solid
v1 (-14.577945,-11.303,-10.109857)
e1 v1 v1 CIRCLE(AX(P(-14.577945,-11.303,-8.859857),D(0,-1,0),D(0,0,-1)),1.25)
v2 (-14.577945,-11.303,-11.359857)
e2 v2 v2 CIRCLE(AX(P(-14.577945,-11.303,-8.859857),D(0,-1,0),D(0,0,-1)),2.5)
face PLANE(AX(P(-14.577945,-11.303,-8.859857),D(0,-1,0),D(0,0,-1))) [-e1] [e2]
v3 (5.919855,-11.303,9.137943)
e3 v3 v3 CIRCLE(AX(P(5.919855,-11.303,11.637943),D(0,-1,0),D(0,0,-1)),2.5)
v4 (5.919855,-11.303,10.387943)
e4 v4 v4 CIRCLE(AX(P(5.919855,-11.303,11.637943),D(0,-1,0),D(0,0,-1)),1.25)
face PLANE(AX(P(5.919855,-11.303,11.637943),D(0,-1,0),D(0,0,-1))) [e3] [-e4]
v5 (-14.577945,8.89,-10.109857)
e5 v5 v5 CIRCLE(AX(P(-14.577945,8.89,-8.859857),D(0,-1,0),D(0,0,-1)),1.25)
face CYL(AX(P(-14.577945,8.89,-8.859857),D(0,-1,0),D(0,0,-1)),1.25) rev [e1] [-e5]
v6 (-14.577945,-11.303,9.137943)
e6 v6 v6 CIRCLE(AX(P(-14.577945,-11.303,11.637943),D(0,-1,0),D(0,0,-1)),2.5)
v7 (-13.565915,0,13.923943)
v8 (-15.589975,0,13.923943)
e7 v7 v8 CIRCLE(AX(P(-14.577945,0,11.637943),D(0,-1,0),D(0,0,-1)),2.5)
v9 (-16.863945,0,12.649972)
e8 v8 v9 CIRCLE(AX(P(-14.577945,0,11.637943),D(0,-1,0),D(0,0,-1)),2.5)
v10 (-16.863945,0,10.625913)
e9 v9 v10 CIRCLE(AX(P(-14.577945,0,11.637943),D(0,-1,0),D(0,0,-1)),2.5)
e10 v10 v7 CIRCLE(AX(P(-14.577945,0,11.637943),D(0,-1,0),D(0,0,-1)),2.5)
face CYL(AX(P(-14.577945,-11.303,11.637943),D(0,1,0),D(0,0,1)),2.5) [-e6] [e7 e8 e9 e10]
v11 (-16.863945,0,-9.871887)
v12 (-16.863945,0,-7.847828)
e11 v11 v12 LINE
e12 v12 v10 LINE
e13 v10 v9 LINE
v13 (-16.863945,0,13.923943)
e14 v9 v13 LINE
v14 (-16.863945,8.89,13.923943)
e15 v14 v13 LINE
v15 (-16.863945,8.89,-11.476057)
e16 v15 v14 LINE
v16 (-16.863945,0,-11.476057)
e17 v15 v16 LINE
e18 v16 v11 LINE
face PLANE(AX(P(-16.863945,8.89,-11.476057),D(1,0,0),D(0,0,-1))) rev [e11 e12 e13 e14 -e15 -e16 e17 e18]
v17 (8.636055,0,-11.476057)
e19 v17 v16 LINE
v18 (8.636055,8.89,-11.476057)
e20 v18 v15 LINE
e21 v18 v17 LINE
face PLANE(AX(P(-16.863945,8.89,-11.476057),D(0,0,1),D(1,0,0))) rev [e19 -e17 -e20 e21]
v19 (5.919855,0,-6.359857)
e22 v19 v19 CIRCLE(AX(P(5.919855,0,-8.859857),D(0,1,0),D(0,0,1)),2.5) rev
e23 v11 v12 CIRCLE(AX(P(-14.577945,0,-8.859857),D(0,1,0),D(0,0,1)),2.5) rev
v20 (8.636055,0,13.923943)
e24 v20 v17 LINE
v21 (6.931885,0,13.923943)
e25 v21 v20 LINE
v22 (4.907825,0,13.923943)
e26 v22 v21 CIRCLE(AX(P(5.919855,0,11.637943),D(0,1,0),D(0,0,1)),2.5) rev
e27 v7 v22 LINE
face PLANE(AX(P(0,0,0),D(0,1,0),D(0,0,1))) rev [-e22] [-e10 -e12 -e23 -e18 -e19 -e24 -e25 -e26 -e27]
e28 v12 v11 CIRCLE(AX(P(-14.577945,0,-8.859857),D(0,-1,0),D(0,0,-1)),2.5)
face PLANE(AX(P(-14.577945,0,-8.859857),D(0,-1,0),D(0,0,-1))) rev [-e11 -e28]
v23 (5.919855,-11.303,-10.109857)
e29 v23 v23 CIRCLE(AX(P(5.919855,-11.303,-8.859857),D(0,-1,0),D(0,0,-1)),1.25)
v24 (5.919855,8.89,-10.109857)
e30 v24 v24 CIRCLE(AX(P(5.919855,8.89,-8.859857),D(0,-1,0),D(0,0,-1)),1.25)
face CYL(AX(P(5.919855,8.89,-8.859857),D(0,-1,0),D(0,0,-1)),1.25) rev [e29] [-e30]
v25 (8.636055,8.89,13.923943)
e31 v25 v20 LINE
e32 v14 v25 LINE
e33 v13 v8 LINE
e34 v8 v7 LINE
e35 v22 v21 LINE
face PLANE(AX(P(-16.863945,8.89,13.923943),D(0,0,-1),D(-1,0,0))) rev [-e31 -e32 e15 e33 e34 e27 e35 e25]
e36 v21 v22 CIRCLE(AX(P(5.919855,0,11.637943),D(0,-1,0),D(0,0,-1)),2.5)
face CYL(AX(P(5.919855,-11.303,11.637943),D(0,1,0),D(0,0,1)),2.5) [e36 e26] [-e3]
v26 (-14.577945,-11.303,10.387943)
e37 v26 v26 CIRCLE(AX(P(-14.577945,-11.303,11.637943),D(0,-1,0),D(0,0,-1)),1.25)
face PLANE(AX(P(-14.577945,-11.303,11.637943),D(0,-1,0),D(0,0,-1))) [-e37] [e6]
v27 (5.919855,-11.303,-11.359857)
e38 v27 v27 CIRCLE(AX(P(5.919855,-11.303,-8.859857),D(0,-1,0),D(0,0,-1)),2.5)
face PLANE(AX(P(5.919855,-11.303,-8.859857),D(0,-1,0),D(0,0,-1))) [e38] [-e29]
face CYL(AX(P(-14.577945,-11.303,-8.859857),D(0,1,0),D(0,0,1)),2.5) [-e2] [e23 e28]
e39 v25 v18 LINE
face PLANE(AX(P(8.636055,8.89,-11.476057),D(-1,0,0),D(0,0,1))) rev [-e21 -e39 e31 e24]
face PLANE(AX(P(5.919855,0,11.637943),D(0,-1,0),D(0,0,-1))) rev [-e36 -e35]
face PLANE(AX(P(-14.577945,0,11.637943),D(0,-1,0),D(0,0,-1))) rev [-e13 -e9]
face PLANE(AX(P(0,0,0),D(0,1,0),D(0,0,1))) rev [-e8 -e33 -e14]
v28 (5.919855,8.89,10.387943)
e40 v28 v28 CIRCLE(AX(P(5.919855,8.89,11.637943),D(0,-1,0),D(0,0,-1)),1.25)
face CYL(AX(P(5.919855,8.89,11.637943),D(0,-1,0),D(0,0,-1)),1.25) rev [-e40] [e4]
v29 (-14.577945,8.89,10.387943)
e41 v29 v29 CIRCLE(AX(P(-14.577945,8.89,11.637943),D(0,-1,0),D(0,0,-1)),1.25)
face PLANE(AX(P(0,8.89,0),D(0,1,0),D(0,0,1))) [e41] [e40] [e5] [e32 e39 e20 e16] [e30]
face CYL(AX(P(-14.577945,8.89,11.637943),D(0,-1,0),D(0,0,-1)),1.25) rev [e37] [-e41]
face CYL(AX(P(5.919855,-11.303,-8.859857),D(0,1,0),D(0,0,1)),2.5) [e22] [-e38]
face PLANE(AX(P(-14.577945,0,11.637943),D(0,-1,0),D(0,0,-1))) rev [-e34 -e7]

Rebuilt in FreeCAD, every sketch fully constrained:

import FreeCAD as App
import Part
import Sketcher

V = App.Vector

doc = App.newDocument("Part")
body = doc.addObject("PartDesign::Body", "Body")

# Sketch on XZ plane
sketch1 = body.newObject("Sketcher::SketchObject", "Sketch")
sketch1.AttachmentSupport = (doc.getObject("XZ_Plane"), [""])
sketch1.MapMode = "FlatFace"
sketch1.addGeometry(Part.LineSegment(V(-16.863945, -11.476057, 0), V(-16.863945, 13.923943, 0)), False)
sketch1.addGeometry(Part.LineSegment(V(-16.863945, 13.923943, 0), V(8.636055, 13.923943, 0)), False)
sketch1.addGeometry(Part.LineSegment(V(8.636055, 13.923943, 0), V(8.636055, -11.476057, 0)), False)
sketch1.addGeometry(Part.LineSegment(V(8.636055, -11.476057, 0), V(-16.863945, -11.476057, 0)), False)
sketch1.addConstraint(Sketcher.Constraint("Coincident", 0, 2, 1, 1))
sketch1.addConstraint(Sketcher.Constraint("Coincident", 1, 2, 2, 1))
sketch1.addConstraint(Sketcher.Constraint("Coincident", 2, 2, 3, 1))
sketch1.addConstraint(Sketcher.Constraint("Coincident", 3, 2, 0, 1))
sketch1.addConstraint(Sketcher.Constraint("Vertical", 0))
sketch1.addConstraint(Sketcher.Constraint("Horizontal", 1))
sketch1.addConstraint(Sketcher.Constraint("Vertical", 2))
sketch1.addConstraint(Sketcher.Constraint("Horizontal", 3))
sketch1.addConstraint(Sketcher.Constraint("DistanceX", 1, 1, 1, 2, 25.5))
sketch1.addConstraint(Sketcher.Constraint("DistanceY", 0, 1, 0, 2, 25.4))
sketch1.addConstraint(Sketcher.Constraint("DistanceX", 0, 2, -1, 1, 16.863945))
sketch1.addConstraint(Sketcher.Constraint("DistanceY", -1, 1, 0, 2, 13.923943))
pad1 = body.newObject("PartDesign::Pad", "Pad")
pad1.Profile = sketch1
pad1.Length = 8.89
pad1.Reversed = True

# Sketch on XZ plane
sketch2 = body.newObject("Sketcher::SketchObject", "Sketch001")
sketch2.AttachmentSupport = (doc.getObject("XZ_Plane"), [""])
sketch2.MapMode = "FlatFace"
sketch2.addGeometry(Part.Circle(V(-14.577945, 11.637943, 0), V(0, 0, 1), 2.5), False)
sketch2.addGeometry(Part.Circle(V(5.919855, 11.637943, 0), V(0, 0, 1), 2.5), False)
sketch2.addGeometry(Part.Circle(V(5.919855, -8.859857, 0), V(0, 0, 1), 2.5), False)
sketch2.addGeometry(Part.Circle(V(-14.577945, -8.859857, 0), V(0, 0, 1), 2.5), False)
sketch2.addConstraint(Sketcher.Constraint("Equal", 0, 1))
sketch2.addConstraint(Sketcher.Constraint("Equal", 1, 2))
sketch2.addConstraint(Sketcher.Constraint("Equal", 2, 3))
sketch2.addConstraint(Sketcher.Constraint("Horizontal", 0, 3, 1, 3))
sketch2.addConstraint(Sketcher.Constraint("Horizontal", 2, 3, 3, 3))
sketch2.addConstraint(Sketcher.Constraint("Vertical", 1, 3, 2, 3))
sketch2.addConstraint(Sketcher.Constraint("Vertical", 0, 3, 3, 3))
sketch2.addConstraint(Sketcher.Constraint("Diameter", 0, 5.0))
sketch2.addConstraint(Sketcher.Constraint("DistanceX", 0, 3, 1, 3, 20.4978))
sketch2.addConstraint(Sketcher.Constraint("DistanceY", 2, 3, 1, 3, 20.4978))
sketch2.addConstraint(Sketcher.Constraint("DistanceX", 0, 3, -1, 1, 14.577945))
sketch2.addConstraint(Sketcher.Constraint("DistanceY", -1, 1, 0, 3, 11.637943))
pad2 = body.newObject("PartDesign::Pad", "Pad001")
pad2.Profile = sketch2
pad2.Length = 11.303

# Sketch on XZ plane
sketch3 = body.newObject("Sketcher::SketchObject", "Sketch002")
sketch3.AttachmentSupport = (doc.getObject("XZ_Plane"), [""])
sketch3.MapMode = "FlatFace"
sketch3.AttachmentOffset = App.Placement(V(0, 0, 11.303), App.Rotation())
sketch3.addGeometry(Part.Circle(V(-14.577945, 11.637943, 0), V(0, 0, 1), 1.25), False)
sketch3.addGeometry(Part.Circle(V(-14.577945, -8.859857, 0), V(0, 0, 1), 1.25), False)
sketch3.addGeometry(Part.Circle(V(5.919855, -8.859857, 0), V(0, 0, 1), 1.25), False)
sketch3.addGeometry(Part.Circle(V(5.919855, 11.637943, 0), V(0, 0, 1), 1.25), False)
sketch3.addConstraint(Sketcher.Constraint("Equal", 0, 1))
sketch3.addConstraint(Sketcher.Constraint("Equal", 1, 2))
sketch3.addConstraint(Sketcher.Constraint("Equal", 2, 3))
sketch3.addConstraint(Sketcher.Constraint("Horizontal", 1, 3, 2, 3))
sketch3.addConstraint(Sketcher.Constraint("Horizontal", 0, 3, 3, 3))
sketch3.addConstraint(Sketcher.Constraint("Vertical", 0, 3, 1, 3))
sketch3.addConstraint(Sketcher.Constraint("Vertical", 2, 3, 3, 3))
sketch3.addConstraint(Sketcher.Constraint("Diameter", 0, 2.5))
sketch3.addConstraint(Sketcher.Constraint("DistanceY", 1, 3, 0, 3, 20.4978))
sketch3.addConstraint(Sketcher.Constraint("DistanceX", 1, 3, 2, 3, 20.4978))
sketch3.addConstraint(Sketcher.Constraint("DistanceX", 0, 3, -1, 1, 14.577945))
sketch3.addConstraint(Sketcher.Constraint("DistanceY", -1, 1, 0, 3, 11.637943))
pocket1 = body.newObject("PartDesign::Pocket", "Pocket")
pocket1.Profile = sketch3
pocket1.Type = "ThroughAll"

doc.recompute()
